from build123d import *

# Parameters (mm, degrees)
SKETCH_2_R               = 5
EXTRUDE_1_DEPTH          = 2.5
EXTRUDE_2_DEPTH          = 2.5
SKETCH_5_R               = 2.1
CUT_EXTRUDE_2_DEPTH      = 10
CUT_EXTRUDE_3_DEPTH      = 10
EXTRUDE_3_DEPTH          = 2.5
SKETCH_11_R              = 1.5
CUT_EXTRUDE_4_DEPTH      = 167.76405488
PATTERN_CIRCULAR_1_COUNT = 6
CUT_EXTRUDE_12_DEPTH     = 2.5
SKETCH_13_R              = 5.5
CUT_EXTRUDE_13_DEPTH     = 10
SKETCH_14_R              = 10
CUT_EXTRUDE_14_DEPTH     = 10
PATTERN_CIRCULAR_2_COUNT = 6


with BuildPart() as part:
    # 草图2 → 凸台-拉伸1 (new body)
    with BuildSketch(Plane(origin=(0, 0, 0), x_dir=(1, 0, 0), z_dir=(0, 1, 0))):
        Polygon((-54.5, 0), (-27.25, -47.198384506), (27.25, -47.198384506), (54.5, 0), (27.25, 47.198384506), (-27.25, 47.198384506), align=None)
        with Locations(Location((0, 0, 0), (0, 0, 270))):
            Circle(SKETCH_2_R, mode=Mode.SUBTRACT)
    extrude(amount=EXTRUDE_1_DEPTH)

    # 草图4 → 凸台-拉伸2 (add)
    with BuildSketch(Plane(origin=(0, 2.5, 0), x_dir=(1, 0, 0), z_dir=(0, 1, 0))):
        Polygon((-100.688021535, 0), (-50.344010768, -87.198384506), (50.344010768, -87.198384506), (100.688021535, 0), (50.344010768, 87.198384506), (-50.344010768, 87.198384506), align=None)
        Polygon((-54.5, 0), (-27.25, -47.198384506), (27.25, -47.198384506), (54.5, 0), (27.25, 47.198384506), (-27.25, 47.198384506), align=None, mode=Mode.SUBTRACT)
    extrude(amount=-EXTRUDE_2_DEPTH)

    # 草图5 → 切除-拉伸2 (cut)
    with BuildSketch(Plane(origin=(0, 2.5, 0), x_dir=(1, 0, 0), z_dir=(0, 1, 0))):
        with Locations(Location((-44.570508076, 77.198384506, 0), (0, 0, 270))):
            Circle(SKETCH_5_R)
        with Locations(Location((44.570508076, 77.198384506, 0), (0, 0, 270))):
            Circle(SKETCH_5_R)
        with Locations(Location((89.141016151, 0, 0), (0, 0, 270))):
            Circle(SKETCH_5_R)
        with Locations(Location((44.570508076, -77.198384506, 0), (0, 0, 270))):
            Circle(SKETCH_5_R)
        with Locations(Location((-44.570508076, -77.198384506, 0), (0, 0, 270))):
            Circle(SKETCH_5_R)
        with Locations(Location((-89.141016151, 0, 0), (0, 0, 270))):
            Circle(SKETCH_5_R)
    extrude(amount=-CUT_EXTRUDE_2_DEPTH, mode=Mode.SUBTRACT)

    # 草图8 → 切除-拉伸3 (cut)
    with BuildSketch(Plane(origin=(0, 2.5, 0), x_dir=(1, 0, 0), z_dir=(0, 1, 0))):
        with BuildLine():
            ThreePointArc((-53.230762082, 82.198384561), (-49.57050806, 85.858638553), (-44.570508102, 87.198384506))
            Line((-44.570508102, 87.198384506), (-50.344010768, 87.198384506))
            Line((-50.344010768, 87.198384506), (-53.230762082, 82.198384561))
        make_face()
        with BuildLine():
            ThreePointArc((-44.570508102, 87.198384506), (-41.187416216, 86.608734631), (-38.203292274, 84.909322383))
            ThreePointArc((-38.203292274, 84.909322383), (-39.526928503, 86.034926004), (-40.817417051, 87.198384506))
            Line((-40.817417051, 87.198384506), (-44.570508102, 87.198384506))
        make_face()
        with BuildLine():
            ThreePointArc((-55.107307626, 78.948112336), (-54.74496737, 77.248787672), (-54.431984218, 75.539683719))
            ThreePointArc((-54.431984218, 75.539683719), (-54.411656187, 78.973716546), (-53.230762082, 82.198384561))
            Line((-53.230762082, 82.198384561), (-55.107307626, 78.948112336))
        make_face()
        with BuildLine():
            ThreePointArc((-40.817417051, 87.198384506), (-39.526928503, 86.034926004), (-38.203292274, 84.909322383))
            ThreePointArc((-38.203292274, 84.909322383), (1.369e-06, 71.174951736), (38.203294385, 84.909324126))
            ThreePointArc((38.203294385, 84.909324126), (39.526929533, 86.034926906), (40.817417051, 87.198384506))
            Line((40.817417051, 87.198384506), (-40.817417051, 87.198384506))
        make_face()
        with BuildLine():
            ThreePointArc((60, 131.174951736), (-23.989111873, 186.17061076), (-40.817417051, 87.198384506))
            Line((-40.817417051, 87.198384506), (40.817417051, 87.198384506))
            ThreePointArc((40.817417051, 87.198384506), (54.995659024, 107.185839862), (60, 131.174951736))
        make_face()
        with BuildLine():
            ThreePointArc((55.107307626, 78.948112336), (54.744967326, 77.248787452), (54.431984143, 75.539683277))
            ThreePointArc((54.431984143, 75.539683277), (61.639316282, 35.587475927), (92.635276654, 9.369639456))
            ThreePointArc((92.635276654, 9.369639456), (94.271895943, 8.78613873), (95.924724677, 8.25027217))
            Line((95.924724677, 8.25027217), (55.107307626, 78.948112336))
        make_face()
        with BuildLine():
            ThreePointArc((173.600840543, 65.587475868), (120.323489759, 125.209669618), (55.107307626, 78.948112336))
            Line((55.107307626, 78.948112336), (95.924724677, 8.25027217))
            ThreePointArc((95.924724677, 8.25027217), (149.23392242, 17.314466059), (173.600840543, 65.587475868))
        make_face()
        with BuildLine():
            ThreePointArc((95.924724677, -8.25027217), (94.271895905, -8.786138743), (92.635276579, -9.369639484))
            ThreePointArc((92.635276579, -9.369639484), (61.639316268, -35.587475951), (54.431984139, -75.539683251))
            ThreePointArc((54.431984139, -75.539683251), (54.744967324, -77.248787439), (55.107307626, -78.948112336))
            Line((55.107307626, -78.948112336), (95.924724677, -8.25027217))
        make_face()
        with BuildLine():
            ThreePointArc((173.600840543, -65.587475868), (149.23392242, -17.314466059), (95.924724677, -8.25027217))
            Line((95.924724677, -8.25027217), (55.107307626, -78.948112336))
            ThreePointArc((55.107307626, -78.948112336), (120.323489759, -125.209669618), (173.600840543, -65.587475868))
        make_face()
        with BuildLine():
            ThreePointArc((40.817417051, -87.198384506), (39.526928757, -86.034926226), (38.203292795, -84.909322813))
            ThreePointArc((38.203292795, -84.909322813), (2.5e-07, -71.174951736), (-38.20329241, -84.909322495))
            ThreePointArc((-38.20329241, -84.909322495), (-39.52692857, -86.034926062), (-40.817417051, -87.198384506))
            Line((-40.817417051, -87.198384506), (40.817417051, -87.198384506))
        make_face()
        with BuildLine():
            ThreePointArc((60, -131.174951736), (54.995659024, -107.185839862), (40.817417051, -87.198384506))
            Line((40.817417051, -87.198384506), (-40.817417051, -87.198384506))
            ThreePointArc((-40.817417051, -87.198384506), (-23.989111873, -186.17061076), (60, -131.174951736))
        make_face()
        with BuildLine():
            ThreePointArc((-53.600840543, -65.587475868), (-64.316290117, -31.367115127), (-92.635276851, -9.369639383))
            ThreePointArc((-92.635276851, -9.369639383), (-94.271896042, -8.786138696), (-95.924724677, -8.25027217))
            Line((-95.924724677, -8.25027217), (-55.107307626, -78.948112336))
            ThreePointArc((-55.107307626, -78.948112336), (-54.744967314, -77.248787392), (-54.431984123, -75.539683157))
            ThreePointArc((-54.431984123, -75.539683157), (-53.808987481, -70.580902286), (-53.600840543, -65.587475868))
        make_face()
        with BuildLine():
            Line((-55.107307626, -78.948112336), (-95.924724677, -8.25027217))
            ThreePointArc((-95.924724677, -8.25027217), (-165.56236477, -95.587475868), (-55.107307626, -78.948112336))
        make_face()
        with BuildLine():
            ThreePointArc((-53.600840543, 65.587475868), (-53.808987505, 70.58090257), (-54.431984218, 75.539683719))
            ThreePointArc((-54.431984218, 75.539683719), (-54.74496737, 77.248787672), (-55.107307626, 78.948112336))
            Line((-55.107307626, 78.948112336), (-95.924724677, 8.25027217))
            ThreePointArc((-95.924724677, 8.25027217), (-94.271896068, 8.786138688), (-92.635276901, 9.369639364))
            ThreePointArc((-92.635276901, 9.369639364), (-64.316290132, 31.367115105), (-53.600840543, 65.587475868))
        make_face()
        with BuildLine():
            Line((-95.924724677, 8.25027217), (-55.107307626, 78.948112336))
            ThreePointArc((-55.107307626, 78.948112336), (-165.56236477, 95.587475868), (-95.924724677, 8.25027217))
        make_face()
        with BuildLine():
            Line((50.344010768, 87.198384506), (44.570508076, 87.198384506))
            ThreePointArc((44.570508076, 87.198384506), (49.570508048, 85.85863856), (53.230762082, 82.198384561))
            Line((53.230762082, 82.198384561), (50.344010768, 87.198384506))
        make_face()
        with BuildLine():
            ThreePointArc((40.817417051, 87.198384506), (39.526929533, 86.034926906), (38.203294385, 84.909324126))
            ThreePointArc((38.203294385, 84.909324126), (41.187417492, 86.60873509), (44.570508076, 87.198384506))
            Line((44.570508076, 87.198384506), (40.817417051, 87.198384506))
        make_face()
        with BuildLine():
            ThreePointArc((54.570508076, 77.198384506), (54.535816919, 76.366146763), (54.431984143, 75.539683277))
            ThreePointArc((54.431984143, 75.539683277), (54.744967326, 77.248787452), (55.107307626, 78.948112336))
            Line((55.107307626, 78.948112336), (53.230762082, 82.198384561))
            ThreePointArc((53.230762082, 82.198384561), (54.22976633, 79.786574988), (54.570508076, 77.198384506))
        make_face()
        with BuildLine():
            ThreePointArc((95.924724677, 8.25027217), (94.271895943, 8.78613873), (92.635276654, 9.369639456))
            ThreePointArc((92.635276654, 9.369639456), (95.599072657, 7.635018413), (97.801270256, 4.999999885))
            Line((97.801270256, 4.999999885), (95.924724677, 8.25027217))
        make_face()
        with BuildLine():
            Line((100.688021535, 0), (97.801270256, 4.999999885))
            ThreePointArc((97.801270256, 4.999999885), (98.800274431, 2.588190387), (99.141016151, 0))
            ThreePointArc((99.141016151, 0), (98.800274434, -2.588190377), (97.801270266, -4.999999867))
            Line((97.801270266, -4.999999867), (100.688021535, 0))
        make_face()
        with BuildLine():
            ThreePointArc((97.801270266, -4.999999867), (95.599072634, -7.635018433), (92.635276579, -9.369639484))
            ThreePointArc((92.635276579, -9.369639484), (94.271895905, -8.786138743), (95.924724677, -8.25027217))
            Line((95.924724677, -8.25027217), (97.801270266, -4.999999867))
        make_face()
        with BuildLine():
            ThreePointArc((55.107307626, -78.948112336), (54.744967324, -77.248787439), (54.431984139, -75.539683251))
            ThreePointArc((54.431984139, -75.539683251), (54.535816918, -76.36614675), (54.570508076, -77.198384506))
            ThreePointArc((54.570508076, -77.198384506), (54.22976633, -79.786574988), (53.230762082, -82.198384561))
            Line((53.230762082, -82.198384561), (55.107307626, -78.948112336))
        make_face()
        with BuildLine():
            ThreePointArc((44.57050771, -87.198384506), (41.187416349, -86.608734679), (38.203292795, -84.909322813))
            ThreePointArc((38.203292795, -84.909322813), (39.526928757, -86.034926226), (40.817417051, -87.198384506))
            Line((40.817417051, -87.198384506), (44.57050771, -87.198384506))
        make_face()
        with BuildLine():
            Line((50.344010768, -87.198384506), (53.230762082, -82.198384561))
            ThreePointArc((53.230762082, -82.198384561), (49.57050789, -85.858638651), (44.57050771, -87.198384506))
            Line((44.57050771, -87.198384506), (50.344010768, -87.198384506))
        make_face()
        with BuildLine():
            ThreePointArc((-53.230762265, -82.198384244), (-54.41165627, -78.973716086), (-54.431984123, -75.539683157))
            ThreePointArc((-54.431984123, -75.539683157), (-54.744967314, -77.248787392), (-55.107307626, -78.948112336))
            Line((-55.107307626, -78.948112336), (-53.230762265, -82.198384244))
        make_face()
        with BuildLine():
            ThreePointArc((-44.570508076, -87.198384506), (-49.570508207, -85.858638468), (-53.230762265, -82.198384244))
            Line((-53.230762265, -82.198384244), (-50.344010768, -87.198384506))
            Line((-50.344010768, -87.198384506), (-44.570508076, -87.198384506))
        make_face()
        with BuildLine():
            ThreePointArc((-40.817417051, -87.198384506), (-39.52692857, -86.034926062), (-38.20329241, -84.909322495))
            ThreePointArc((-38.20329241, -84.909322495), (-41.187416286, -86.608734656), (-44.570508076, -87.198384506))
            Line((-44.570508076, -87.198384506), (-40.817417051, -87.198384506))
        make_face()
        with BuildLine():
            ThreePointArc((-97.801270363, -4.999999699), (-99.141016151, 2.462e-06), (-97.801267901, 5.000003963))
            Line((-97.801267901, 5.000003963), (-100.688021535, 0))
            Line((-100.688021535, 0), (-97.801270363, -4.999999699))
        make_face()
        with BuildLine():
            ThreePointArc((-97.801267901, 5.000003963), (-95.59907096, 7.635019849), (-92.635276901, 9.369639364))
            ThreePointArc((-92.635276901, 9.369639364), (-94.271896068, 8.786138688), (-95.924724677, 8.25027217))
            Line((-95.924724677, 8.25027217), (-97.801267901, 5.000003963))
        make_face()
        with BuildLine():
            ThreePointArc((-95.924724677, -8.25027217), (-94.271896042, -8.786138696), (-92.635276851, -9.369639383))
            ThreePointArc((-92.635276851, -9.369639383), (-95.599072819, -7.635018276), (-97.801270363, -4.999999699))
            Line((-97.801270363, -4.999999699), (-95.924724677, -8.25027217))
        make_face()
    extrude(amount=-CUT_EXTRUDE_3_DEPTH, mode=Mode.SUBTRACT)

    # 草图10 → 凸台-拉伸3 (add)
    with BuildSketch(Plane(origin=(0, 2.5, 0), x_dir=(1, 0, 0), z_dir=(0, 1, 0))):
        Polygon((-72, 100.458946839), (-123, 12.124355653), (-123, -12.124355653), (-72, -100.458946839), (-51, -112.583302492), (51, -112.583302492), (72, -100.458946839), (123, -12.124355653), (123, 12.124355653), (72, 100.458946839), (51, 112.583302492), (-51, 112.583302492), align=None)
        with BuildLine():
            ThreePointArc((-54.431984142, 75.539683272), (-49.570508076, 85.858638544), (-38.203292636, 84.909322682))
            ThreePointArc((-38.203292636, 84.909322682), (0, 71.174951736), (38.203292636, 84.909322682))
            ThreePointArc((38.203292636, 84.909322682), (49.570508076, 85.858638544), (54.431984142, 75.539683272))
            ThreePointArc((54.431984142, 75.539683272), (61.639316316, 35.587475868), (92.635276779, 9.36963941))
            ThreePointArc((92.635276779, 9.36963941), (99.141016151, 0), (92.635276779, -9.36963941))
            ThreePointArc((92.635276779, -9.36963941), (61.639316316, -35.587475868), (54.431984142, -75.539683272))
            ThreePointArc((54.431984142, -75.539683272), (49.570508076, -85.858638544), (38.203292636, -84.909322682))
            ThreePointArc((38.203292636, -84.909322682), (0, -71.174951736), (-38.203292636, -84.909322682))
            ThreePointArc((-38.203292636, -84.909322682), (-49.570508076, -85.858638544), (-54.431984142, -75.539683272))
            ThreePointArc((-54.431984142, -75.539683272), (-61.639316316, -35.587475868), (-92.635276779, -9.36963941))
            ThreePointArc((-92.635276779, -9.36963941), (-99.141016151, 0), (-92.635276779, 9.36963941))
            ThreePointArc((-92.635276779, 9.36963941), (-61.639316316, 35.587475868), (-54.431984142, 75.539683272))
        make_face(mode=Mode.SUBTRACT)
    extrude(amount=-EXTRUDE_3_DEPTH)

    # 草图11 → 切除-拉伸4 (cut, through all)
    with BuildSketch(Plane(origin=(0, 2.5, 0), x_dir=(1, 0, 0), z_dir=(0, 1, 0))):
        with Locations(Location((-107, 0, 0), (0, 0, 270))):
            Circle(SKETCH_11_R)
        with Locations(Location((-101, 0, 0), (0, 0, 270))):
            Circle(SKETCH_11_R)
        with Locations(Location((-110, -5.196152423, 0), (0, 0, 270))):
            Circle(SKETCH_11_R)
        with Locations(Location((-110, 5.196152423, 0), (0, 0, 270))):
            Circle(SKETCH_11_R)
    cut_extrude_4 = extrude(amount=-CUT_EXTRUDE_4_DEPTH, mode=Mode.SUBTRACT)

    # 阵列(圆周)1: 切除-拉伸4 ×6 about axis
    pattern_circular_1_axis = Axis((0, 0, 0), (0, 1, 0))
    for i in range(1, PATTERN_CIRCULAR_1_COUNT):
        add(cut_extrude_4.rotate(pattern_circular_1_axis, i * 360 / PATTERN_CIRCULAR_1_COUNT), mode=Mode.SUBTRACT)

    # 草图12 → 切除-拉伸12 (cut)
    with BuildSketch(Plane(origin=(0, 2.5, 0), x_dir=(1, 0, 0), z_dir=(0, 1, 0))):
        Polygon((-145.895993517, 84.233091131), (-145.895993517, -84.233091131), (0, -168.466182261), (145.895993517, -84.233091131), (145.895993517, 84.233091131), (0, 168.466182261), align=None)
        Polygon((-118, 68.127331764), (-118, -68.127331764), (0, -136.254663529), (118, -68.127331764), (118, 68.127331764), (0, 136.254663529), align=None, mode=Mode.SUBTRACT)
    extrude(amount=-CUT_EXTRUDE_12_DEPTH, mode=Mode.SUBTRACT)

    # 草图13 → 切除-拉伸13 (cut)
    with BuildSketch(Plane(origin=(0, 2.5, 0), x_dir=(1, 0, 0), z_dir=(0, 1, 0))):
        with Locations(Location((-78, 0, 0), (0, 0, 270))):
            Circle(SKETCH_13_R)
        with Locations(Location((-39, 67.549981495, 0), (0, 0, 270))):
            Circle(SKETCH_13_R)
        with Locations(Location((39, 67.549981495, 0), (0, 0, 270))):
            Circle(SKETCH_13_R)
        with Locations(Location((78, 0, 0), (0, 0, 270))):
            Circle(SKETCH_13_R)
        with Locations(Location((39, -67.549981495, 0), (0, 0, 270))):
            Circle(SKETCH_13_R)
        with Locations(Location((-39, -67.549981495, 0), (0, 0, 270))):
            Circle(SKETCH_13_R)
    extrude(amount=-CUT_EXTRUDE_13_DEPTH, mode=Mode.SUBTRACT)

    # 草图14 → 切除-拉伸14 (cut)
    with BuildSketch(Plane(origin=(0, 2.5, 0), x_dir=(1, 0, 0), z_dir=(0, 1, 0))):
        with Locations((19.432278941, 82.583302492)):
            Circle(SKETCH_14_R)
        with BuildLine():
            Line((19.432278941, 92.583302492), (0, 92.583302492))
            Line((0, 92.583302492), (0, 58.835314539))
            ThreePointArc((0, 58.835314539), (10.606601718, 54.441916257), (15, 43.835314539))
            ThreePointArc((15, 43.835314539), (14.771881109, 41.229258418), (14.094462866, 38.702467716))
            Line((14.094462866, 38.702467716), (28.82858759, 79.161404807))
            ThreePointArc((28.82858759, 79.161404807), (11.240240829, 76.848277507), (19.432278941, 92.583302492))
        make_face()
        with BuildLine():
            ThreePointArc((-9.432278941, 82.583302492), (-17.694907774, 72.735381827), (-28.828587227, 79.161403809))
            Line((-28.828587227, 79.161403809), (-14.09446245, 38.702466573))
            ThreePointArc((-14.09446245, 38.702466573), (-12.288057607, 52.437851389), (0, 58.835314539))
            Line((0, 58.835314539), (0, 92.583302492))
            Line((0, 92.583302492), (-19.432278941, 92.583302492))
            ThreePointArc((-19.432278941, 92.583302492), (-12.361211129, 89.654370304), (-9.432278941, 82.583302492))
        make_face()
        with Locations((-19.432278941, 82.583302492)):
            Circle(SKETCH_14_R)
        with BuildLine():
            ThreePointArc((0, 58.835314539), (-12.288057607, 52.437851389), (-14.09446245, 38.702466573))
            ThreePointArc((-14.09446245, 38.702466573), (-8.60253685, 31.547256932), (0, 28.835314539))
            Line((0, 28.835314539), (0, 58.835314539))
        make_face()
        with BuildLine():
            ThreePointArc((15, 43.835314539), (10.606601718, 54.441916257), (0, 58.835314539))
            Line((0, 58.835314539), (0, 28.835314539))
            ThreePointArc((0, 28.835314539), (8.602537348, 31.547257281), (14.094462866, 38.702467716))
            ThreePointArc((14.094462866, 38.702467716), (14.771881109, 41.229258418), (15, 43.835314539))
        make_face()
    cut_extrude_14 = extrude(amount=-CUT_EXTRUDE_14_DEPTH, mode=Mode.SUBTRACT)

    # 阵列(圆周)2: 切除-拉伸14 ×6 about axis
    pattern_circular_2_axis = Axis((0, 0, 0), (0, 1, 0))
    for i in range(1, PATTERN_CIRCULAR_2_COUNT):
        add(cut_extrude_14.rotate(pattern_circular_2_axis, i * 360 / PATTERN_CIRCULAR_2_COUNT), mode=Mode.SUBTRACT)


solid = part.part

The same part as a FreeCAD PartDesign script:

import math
import FreeCAD as App
import Part
import Sketcher

V = App.Vector
Q = App.Units.Quantity


def add_polygon(sketch, points):
    """Adds a closed chain of lines whose ends are joined by coincident constraints."""
    first, n = sketch.GeometryCount, len(points)
    for a, b in zip(points, points[1:] + points[:1]):
        sketch.addGeometry(Part.LineSegment(App.Vector(*a, 0), App.Vector(*b, 0)), False)
    for i in range(n):
        sketch.addConstraint(Sketcher.Constraint("Coincident", first + i, 2, first + (i + 1) % n, 1))

doc = App.newDocument("Part")
body = doc.addObject("PartDesign::Body", "Body")

sketch1 = body.newObject("Sketcher::SketchObject", "Sketch")
sketch1.AttachmentSupport = (doc.getObject("XZ_Plane"), [""])
sketch1.MapMode = "FlatFace"
add_polygon(sketch1, [(-54.5, 0), (-27.25, 47.198385), (27.25, 47.198385), (54.5, 0), (27.25, -47.198385), (-27.25, -47.198385)])
sketch1.addGeometry(Part.Circle(V(0, 0, 0), V(0, 0, 1), 5), False)
sketch1.addConstraint([
    Sketcher.Constraint("Horizontal", 1),
    Sketcher.Constraint("Horizontal", 4),
    Sketcher.Constraint("Coincident", 6, 3, -1, 1),
    Sketcher.Constraint("Symmetric", 0, 2, 3, 2, -1, 1),
    Sketcher.Constraint("Symmetric", 2, 2, 5, 2, -1, 1),
    Sketcher.Constraint("PointOnObject", 2, 2, -1),
    Sketcher.Constraint("Parallel", 2, 5),
    Sketcher.Constraint("Vertical", 1, 2, 3, 2),
    Sketcher.Constraint("Diameter", 6, Q("10 mm")),
    Sketcher.Constraint("Angle", 0, Q("60 deg")),
    Sketcher.Constraint("DistanceX", 1, 1, 1, 2, Q("54.5 mm")),
    Sketcher.Constraint("Distance", 0, Q("54.5 mm")),
])
pad1 = body.newObject("PartDesign::Pad", "Pad")
pad1.Profile = sketch1
pad1.Length = 2.5
pad1.Reversed = True

sketch2 = body.newObject("Sketcher::SketchObject", "Sketch001")
sketch2.AttachmentSupport = (doc.getObject("XZ_Plane"), [""])
sketch2.MapMode = "FlatFace"
sketch2.AttachmentOffset = App.Placement(V(0, 0, -2.5), App.Rotation())
add_polygon(sketch2, [(-100.688022, 0), (-50.344011, 87.198385), (50.344011, 87.198385), (100.688022, 0), (50.344011, -87.198385), (-50.344011, -87.198385)])
add_polygon(sketch2, [(-27.25, 47.198385), (-54.5, 0), (-27.25, -47.198385), (27.25, -47.198385), (54.5, 0), (27.25, 47.198385)])
sketch2.addConstraint([
    Sketcher.Constraint("Horizontal", 1),
    Sketcher.Constraint("Horizontal", 4),
    Sketcher.Constraint("Horizontal", 8),
    Sketcher.Constraint("Horizontal", 11),
    Sketcher.Constraint("Symmetric", 0, 2, 3, 2, -1, 1),
    Sketcher.Constraint("Symmetric", 2, 2, 5, 2, -1, 1),
    Sketcher.Constraint("Symmetric", 6, 2, 9, 2, -1, 1),
    Sketcher.Constraint("Symmetric", 7, 2, 10, 2, -1, 1),
    Sketcher.Constraint("PointOnObject", 2, 2, -1),
    Sketcher.Constraint("PointOnObject", 6, 2, -1),
    Sketcher.Constraint("Parallel", 2, 5),
    Sketcher.Constraint("Parallel", 3, 6),
    Sketcher.Constraint("Parallel", 5, 7),
    Sketcher.Constraint("Parallel", 6, 9),
    Sketcher.Constraint("Vertical", 1, 2, 3, 2),
    Sketcher.Constraint("Angle", 0, Q("60 deg")),
    Sketcher.Constraint("DistanceX", 8, 1, 8, 2, Q("54.5 mm")),
    Sketcher.Constraint("DistanceY", 4, 2, 7, 2, Q("40 mm")),
    Sketcher.Constraint("Distance", 6, Q("54.5 mm")),
    Sketcher.Constraint("DistanceX", 1, 1, 1, 2, Q("100.688022 mm")),
])
pad2 = body.newObject("PartDesign::Pad", "Pad001")
pad2.Profile = sketch2
pad2.Length = 2.5

sketch3 = body.newObject("Sketcher::SketchObject", "Sketch002")
sketch3.AttachmentSupport = (doc.getObject("XZ_Plane"), [""])
sketch3.MapMode = "FlatFace"
sketch3.AttachmentOffset = App.Placement(V(0, 0, -2.5), App.Rotation())
sketch3.addGeometry([
    Part.Circle(V(-44.570508, -77.198385, 0), V(0, 0, 1), 2.1),
    Part.Circle(V(44.570508, -77.198385, 0), V(0, 0, 1), 2.1),
    Part.Circle(V(89.141016, 0, 0), V(0, 0, 1), 2.1),
    Part.Circle(V(44.570508, 77.198385, 0), V(0, 0, 1), 2.1),
    Part.Circle(V(-44.570508, 77.198385, 0), V(0, 0, 1), 2.1),
    Part.Circle(V(-89.141016, 0, 0), V(0, 0, 1), 2.1),
], False)
sketch3.addConstraint([
    Sketcher.Constraint("Equal", 0, 1),
    Sketcher.Constraint("Equal", 1, 2),
    Sketcher.Constraint("Equal", 2, 3),
    Sketcher.Constraint("Equal", 3, 4),
    Sketcher.Constraint("Equal", 4, 5),
    Sketcher.Constraint("Symmetric", 0, 3, 3, 3, -1, 1),
    Sketcher.Constraint("Symmetric", 1, 3, 4, 3, -1, 1),
    Sketcher.Constraint("Symmetric", 2, 3, 5, 3, -1, 1),
    Sketcher.Constraint("Symmetric", 0, 3, 1, 3, -2),
    Sketcher.Constraint("PointOnObject", 2, 3, -1),
    Sketcher.Constraint("Diameter", 0, Q("4.2 mm")),
    Sketcher.Constraint("DistanceX", 0, 3, -1, 1, Q("44.570508 mm")),
    Sketcher.Constraint("DistanceX", 1, 3, 2, 3, Q("44.570508 mm")),
    Sketcher.Constraint("DistanceY", 1, 3, 3, 3, Q("154.396769 mm")),
])
pocket1 = body.newObject("PartDesign::Pocket", "Pocket")
pocket1.Profile = sketch3
pocket1.Length = 10
pocket1.Reversed = True

sketch4 = body.newObject("Sketcher::SketchObject", "Sketch003")
sketch4.AttachmentSupport = (doc.getObject("XZ_Plane"), [""])
sketch4.MapMode = "FlatFace"
sketch4.AttachmentOffset = App.Placement(V(0, 0, -2.5), App.Rotation())
sketch4.addGeometry([
    Part.ArcOfCircle(Part.Circle(V(-44.570508, -77.198385, 0), V(0, 0, 1), 10), math.radians(-150), math.radians(-90)),
    Part.LineSegment(V(-44.570508, -87.198385, 0), V(-50.344011, -87.198385, 0)),
    Part.LineSegment(V(-50.344011, -87.198385, 0), V(-53.230762, -82.198385, 0)),
    Part.ArcOfCircle(Part.Circle(V(-44.570508, -77.198385, 0), V(0, 0, 1), 10), math.radians(-90), math.radians(-50.452212)),
    Part.ArcOfCircle(Part.Circle(V(0, -131.174952, 0), V(0, 0, 1), 60), math.radians(50.452212), math.radians(129.547785)),
    Part.ArcOfCircle(Part.Circle(V(44.570508, -77.198385, 0), V(0, 0, 1), 10), math.radians(-129.547772), math.radians(-90)),
    Part.LineSegment(V(44.570508, -87.198385, 0), V(40.817417, -87.198385, 0)),
    Part.ArcOfCircle(Part.Circle(V(0, -131.174952, 0), V(0, 0, 1), 60), math.radians(0), math.radians(47.133669)),
    Part.ArcOfCircle(Part.Circle(V(0, -131.174952, 0), V(0, 0, 1), 60), math.radians(132.866331), math.radians(360)),
    Part.LineSegment(V(-40.817417, -87.198385, 0), V(-44.570508, -87.198385, 0)),
    Part.ArcOfCircle(Part.Circle(V(-44.570508, -77.198385, 0), V(0, 0, 1), 10), math.radians(170.452217), math.radians(210)),
    Part.LineSegment(V(-53.230762, -82.198385, 0), V(-55.107308, -78.948112, 0)),
    Part.ArcOfCircle(Part.Circle(V(-113.600841, -65.587476, 0), V(0, 0, 1), 60), math.radians(72.866331), math.radians(347.133669)),
    Part.LineSegment(V(-95.924725, -8.250272, 0), V(-97.801268, -5.000004, 0)),
    Part.ArcOfCircle(Part.Circle(V(-89.141016, 0, 0), V(0, 0, 1), 10), math.radians(-149.999974), math.radians(-110.452215)),
    Part.ArcOfCircle(Part.Circle(V(-113.600841, -65.587476, 0), V(0, 0, 1), 60), math.radians(0), math.radians(69.547786)),
    Part.ArcOfCircle(Part.Circle(V(-113.600841, -65.587476, 0), V(0, 0, 1), 60), math.radians(-9.547786), math.radians(0)),
    Part.ArcOfCircle(Part.Circle(V(113.600841, -65.587476, 0), V(0, 0, 1), 60), math.radians(110.452215), math.radians(189.547785)),
    Part.ArcOfCircle(Part.Circle(V(89.141016, 0, 0), V(0, 0, 1), 10), math.radians(-69.547786), math.radians(-29.999999)),
    Part.LineSegment(V(97.80127, -5, 0), V(95.924725, -8.250272, 0)),
    Part.ArcOfCircle(Part.Circle(V(113.600841, -65.587476, 0), V(0, 0, 1), 60), math.radians(0), math.radians(107.133669)),
    Part.ArcOfCircle(Part.Circle(V(113.600841, -65.587476, 0), V(0, 0, 1), 60), math.radians(-167.133669), math.radians(0)),
    Part.LineSegment(V(55.107308, -78.948112, 0), V(53.230762, -82.198385, 0)),
    Part.ArcOfCircle(Part.Circle(V(44.570508, -77.198385, 0), V(0, 0, 1), 10), math.radians(-30), math.radians(0)),
    Part.ArcOfCircle(Part.Circle(V(44.570508, -77.198385, 0), V(0, 0, 1), 10), math.radians(0), math.radians(9.547785)),
    Part.ArcOfCircle(Part.Circle(V(113.600841, 65.587476, 0), V(0, 0, 1), 60), math.radians(170.452215), math.radians(249.547785)),
    Part.ArcOfCircle(Part.Circle(V(44.570508, 77.198385, 0), V(0, 0, 1), 10), math.radians(-9.547786), math.radians(0)),
    Part.ArcOfCircle(Part.Circle(V(44.570508, 77.198385, 0), V(0, 0, 1), 10), math.radians(0), math.radians(30)),
    Part.LineSegment(V(53.230762, 82.198385, 0), V(55.107308, 78.948112, 0)),
    Part.ArcOfCircle(Part.Circle(V(113.600841, 65.587476, 0), V(0, 0, 1), 60), math.radians(0), math.radians(167.133669)),
    Part.ArcOfCircle(Part.Circle(V(113.600841, 65.587476, 0), V(0, 0, 1), 60), math.radians(-107.133669), math.radians(0)),
    Part.LineSegment(V(95.924725, 8.250272, 0), V(97.80127, 5, 0)),
    Part.ArcOfCircle(Part.Circle(V(89.141016, 0, 0), V(0, 0, 1), 10), math.radians(29.999999), math.radians(69.547787)),
    Part.ArcOfCircle(Part.Circle(V(0, 131.174952, 0), V(0, 0, 1), 60), math.radians(-129.547785), math.radians(-50.452214)),
    Part.ArcOfCircle(Part.Circle(V(-44.570508, 77.198385, 0), V(0, 0, 1), 10), math.radians(50.452213), math.radians(90)),
    Part.LineSegment(V(-44.570508, 87.198385, 0), V(-40.817417, 87.198385, 0)),
    Part.ArcOfCircle(Part.Circle(V(0, 131.174952, 0), V(0, 0, 1), 60), math.radians(0), math.radians(227.133669)),
    Part.ArcOfCircle(Part.Circle(V(0, 131.174952, 0), V(0, 0, 1), 60), math.radians(-47.133669), math.radians(0)),
    Part.LineSegment(V(40.817417, 87.198385, 0), V(44.570508, 87.198385, 0)),
    Part.ArcOfCircle(Part.Circle(V(44.570508, 77.198385, 0), V(0, 0, 1), 10), math.radians(90.000002), math.radians(129.547784)),
    Part.ArcOfCircle(Part.Circle(V(-113.600841, 65.587476, 0), V(0, 0, 1), 60), math.radians(-69.547785), math.radians(0)),
    Part.ArcOfCircle(Part.Circle(V(-89.141016, 0, 0), V(0, 0, 1), 10), math.radians(110.452215), math.radians(150.000002)),
    Part.LineSegment(V(-97.80127, 5, 0), V(-95.924725, 8.250272, 0)),
    Part.ArcOfCircle(Part.Circle(V(-113.600841, 65.587476, 0), V(0, 0, 1), 60), math.radians(12.866331), math.radians(287.133669)),
    Part.LineSegment(V(-55.107308, 78.948112, 0), V(-53.230762, 82.198384, 0)),
    Part.ArcOfCircle(Part.Circle(V(-44.570508, 77.198385, 0), V(0, 0, 1), 10), math.radians(150.000002), math.radians(189.547786)),
    Part.ArcOfCircle(Part.Circle(V(-113.600841, 65.587476, 0), V(0, 0, 1), 60), math.radians(0), math.radians(9.547785)),
    Part.LineSegment(V(50.344011, -87.198385, 0), V(44.570508, -87.198385, 0)),
    Part.ArcOfCircle(Part.Circle(V(44.570508, -77.198385, 0), V(0, 0, 1), 10), math.radians(-90), math.radians(-30)),
    Part.LineSegment(V(53.230762, -82.198385, 0), V(50.344011, -87.198385, 0)),
    Part.LineSegment(V(100.688022, 0, 0), V(97.80127, -5, 0)),
    Part.ArcOfCircle(Part.Circle(V(89.141016, 0, 0), V(0, 0, 1), 10), math.radians(-29.999999), math.radians(0)),
    Part.ArcOfCircle(Part.Circle(V(89.141016, 0, 0), V(0, 0, 1), 10), math.radians(0), math.radians(29.999999)),
    Part.LineSegment(V(97.80127, 5, 0), V(100.688022, 0, 0)),
    Part.LineSegment(V(50.344011, 87.198385, 0), V(53.230762, 82.198385, 0)),
    Part.ArcOfCircle(Part.Circle(V(44.570508, 77.198385, 0), V(0, 0, 1), 10), math.radians(30), math.radians(90.000002)),
    Part.LineSegment(V(44.570508, 87.198385, 0), V(50.344011, 87.198385, 0)),
    Part.ArcOfCircle(Part.Circle(V(-44.570508, 77.198385, 0), V(0, 0, 1), 10), math.radians(90), math.radians(150.000002)),
    Part.LineSegment(V(-53.230762, 82.198384, 0), V(-50.344011, 87.198385, 0)),
    Part.LineSegment(V(-50.344011, 87.198385, 0), V(-44.570508, 87.198385, 0)),
    Part.ArcOfCircle(Part.Circle(V(-89.141016, 0, 0), V(0, 0, 1), 10), math.radians(150.000002), math.radians(210.000026)),
    Part.LineSegment(V(-97.801268, -5.000004, 0), V(-100.688022, 0, 0)),
    Part.LineSegment(V(-100.688022, 0, 0), V(-97.80127, 5, 0)),
], False)
sketch4.addConstraint([
    Sketcher.Constraint("Tangent", 0, 2, 1, 1),
    Sketcher.Constraint("Coincident", 1, 2, 2, 1),
    Sketcher.Constraint("Tangent", 2, 2, 0, 1),
    Sketcher.Constraint("Tangent", 3, 2, 4, 2),
    Sketcher.Constraint("Tangent", 4, 1, 5, 1),
    Sketcher.Constraint("Tangent", 5, 2, 6, 1),
    Sketcher.Constraint("Coincident", 6, 2, 7, 2),
    Sketcher.Constraint("Tangent", 7, 1, 8, 2),
    Sketcher.Constraint("Coincident", 8, 1, 9, 1),
    Sketcher.Constraint("Tangent", 9, 2, 3, 1),
    Sketcher.Constraint("Tangent", 10, 2, 11, 1),
    Sketcher.Constraint("Coincident", 11, 2, 12, 2),
    Sketcher.Constraint("Coincident", 12, 1, 13, 1),
    Sketcher.Constraint("Tangent", 13, 2, 14, 1),
    Sketcher.Constraint("Tangent", 14, 2, 15, 2),
    Sketcher.Constraint("Tangent", 15, 1, 16, 2),
    Sketcher.Constraint("Tangent", 16, 1, 10, 1),
    Sketcher.Constraint("Tangent", 17, 1, 18, 1),
    Sketcher.Constraint("Tangent", 18, 2, 19, 1),
    Sketcher.Constraint("Coincident", 19, 2, 20, 2),
    Sketcher.Constraint("Tangent", 20, 1, 21, 2),
    Sketcher.Constraint("Coincident", 21, 1, 22, 1),
    Sketcher.Constraint("Tangent", 22, 2, 23, 1),
    Sketcher.Constraint("Tangent", 23, 2, 24, 1),
    Sketcher.Constraint("Tangent", 24, 2, 17, 2),
    Sketcher.Constraint("Tangent", 25, 1, 26, 1),
    Sketcher.Constraint("Tangent", 26, 2, 27, 1),
    Sketcher.Constraint("Tangent", 27, 2, 28, 1),
    Sketcher.Constraint("Coincident", 28, 2, 29, 2),
    Sketcher.Constraint("Tangent", 29, 1, 30, 2),
    Sketcher.Constraint("Coincident", 30, 1, 31, 1),
    Sketcher.Constraint("Tangent", 31, 2, 32, 1),
    Sketcher.Constraint("Tangent", 32, 2, 25, 2),
    Sketcher.Constraint("Tangent", 33, 1, 34, 1),
    Sketcher.Constraint("Tangent", 34, 2, 35, 1),
    Sketcher.Constraint("Coincident", 35, 2, 36, 2),
    Sketcher.Constraint("Tangent", 36, 1, 37, 2),
    Sketcher.Constraint("Coincident", 37, 1, 38, 1),
    Sketcher.Constraint("Tangent", 38, 2, 39, 1),
    Sketcher.Constraint("Tangent", 39, 2, 33, 2),
    Sketcher.Constraint("Tangent", 40, 1, 41, 1),
    Sketcher.Constraint("Tangent", 41, 2, 42, 1),
    Sketcher.Constraint("Coincident", 42, 2, 43, 2),
    Sketcher.Constraint("Coincident", 43, 1, 44, 1),
    Sketcher.Constraint("Tangent", 44, 2, 45, 1),
    Sketcher.Constraint("Tangent", 45, 2, 46, 2),
    Sketcher.Constraint("Tangent", 46, 1, 40, 2),
    Sketcher.Constraint("Tangent", 47, 2, 48, 1),
    Sketcher.Constraint("Tangent", 48, 2, 49, 1),
    Sketcher.Constraint("Coincident", 49, 2, 47, 1),
    Sketcher.Constraint("Tangent", 50, 2, 51, 1),
    Sketcher.Constraint("Tangent", 51, 2, 52, 1),
    Sketcher.Constraint("Tangent", 52, 2, 53, 1),
    Sketcher.Constraint("Coincident", 53, 2, 50, 1),
    Sketcher.Constraint("Tangent", 54, 2, 55, 1),
    Sketcher.Constraint("Tangent", 55, 2, 56, 1),
    Sketcher.Constraint("Coincident", 56, 2, 54, 1),
    Sketcher.Constraint("Tangent", 57, 2, 58, 1),
    Sketcher.Constraint("Coincident", 58, 2, 59, 1),
    Sketcher.Constraint("Tangent", 59, 2, 57, 1),
    Sketcher.Constraint("Tangent", 60, 2, 61, 1),
    Sketcher.Constraint("Coincident", 61, 2, 62, 1),
    Sketcher.Constraint("Tangent", 62, 2, 60, 1),
    Sketcher.Constraint("Horizontal", 1),
    Sketcher.Constraint("Horizontal", 6),
    Sketcher.Constraint("Horizontal", 9),
    Sketcher.Constraint("Horizontal", 35),
    Sketcher.Constraint("Horizontal", 38),
    Sketcher.Constraint("Horizontal", 47),
    Sketcher.Constraint("Horizontal", 56),
    Sketcher.Constraint("Horizontal", 59),
    Sketcher.Constraint("Coincident", 3, 3, 0, 3),
    Sketcher.Constraint("Coincident", 7, 3, 4, 3),
    Sketcher.Constraint("Coincident", 10, 3, 0, 3),
    Sketcher.Constraint("Coincident", 15, 3, 12, 3),
    Sketcher.Constraint("Coincident", 20, 3, 17, 3),
    Sketcher.Constraint("Coincident", 23, 3, 5, 3),
    Sketcher.Constraint("Coincident", 29, 3, 25, 3),
    Sketcher.Constraint("Coincident", 32, 3, 18, 3),
    Sketcher.Constraint("Coincident", 36, 3, 33, 3),
    Sketcher.Constraint("Coincident", 39, 3, 26, 3),
    Sketcher.Constraint("Coincident", 41, 3, 14, 3),
    Sketcher.Constraint("Coincident", 43, 3, 40, 3),
    Sketcher.Constraint("Coincident", 45, 3, 34, 3),
    Sketcher.Constraint("Coincident", 48, 3, 5, 3),
    Sketcher.Constraint("Coincident", 51, 3, 18, 3),
    Sketcher.Constraint("Coincident", 55, 3, 26, 3),
    Sketcher.Constraint("Coincident", 57, 3, 34, 3),
    Sketcher.Constraint("Coincident", 60, 3, 14, 3),
    Sketcher.Constraint("Coincident", 10, 2, 2, 2),
    Sketcher.Constraint("Coincident", 48, 2, 22, 2),
    Sketcher.Constraint("Coincident", 50, 2, 18, 2),
    Sketcher.Constraint("Coincident", 52, 2, 31, 2),
    Sketcher.Constraint("Coincident", 54, 2, 27, 2),
    Sketcher.Constraint("Coincident", 57, 2, 44, 2),
    Sketcher.Constraint("Coincident", 60, 2, 13, 2),
    Sketcher.Constraint("Coincident", 62, 2, 41, 2),
    Sketcher.Constraint("Equal", 0, 3),
    Sketcher.Constraint("Equal", 3, 5),
    Sketcher.Constraint("Equal", 4, 7),
    Sketcher.Constraint("Equal", 7, 8),
    Sketcher.Constraint("Equal", 8, 12),
    Sketcher.Constraint("Equal", 10, 14),
    Sketcher.Constraint("Equal", 12, 15),
    Sketcher.Constraint("Equal", 15, 16),
    Sketcher.Constraint("Equal", 16, 17),
    Sketcher.Constraint("Equal", 14, 18),
    Sketcher.Constraint("Equal", 17, 20),
    Sketcher.Constraint("Equal", 20, 21),
    Sketcher.Constraint("Equal", 18, 23),
    Sketcher.Constraint("Equal", 23, 24),
    Sketcher.Constraint("Equal", 21, 25),
    Sketcher.Constraint("Equal", 24, 26),
    Sketcher.Constraint("Equal", 26, 27),
    Sketcher.Constraint("Equal", 25, 29),
    Sketcher.Constraint("Equal", 29, 30),
    Sketcher.Constraint("Equal", 27, 32),
    Sketcher.Constraint("Equal", 30, 33),
    Sketcher.Constraint("Equal", 32, 34),
    Sketcher.Constraint("Equal", 33, 36),
    Sketcher.Constraint("Equal", 36, 37),
    Sketcher.Constraint("Equal", 34, 39),
    Sketcher.Constraint("Equal", 37, 40),
    Sketcher.Constraint("Equal", 40, 43),
    Sketcher.Constraint("Equal", 41, 45),
    Sketcher.Constraint("Equal", 43, 46),
    Sketcher.Constraint("Symmetric", 14, 3, 18, 3, -1, 1),
    Sketcher.Constraint("Symmetric", 0, 3, 26, 3, -1, 1),
    Sketcher.Constraint("Symmetric", 5, 3, 34, 3, -1, 1),
    Sketcher.Constraint("Symmetric", 53, 2, 61, 2, -1, 1),
    Sketcher.Constraint("Symmetric", 0, 3, 5, 3, -2),
    Sketcher.Constraint("Symmetric", 13, 2, 18, 2, -2),
    Sketcher.Constraint("PointOnObject", 51, 2, -1),
    Sketcher.Constraint("Parallel", 11, 13),
    Sketcher.Constraint("Parallel", 19, 22),
    Sketcher.Constraint("Parallel", 13, 28),
    Sketcher.Constraint("Parallel", 42, 44),
    Sketcher.Constraint("Horizontal", 8, 3, 7, 1),
    Sketcher.Constraint("Horizontal", 21, 3, 15, 1),
    Sketcher.Constraint("Horizontal", 15, 1, 20, 1),
    Sketcher.Constraint("Horizontal", 48, 3, 23, 2),
    Sketcher.Constraint("Horizontal", 57, 3, 26, 2),
    Sketcher.Constraint("Horizontal", 46, 3, 29, 1),
    Sketcher.Constraint("Horizontal", 37, 3, 36, 1),
    Sketcher.Constraint("Horizontal", 29, 1, 46, 1),
    Sketcher.Constraint("Equal", 11, 19),
    Sketcher.Constraint("Equal", 49, 50),
    Sketcher.Constraint("Radius", 0, Q("10 mm")),
    Sketcher.Constraint("Radius", 4, Q("60 mm")),
    Sketcher.Constraint("DistanceX", 6, 2, 6, 1, Q("3.753091 mm")),
    Sketcher.Constraint("Distance", 11, Q("3.753091 mm")),
])
pocket2 = body.newObject("PartDesign::Pocket", "Pocket001")
pocket2.Profile = sketch4
pocket2.Length = 10
pocket2.Reversed = True

sketch5 = body.newObject("Sketcher::SketchObject", "Sketch004")
sketch5.AttachmentSupport = (doc.getObject("XZ_Plane"), [""])
sketch5.MapMode = "FlatFace"
sketch5.AttachmentOffset = App.Placement(V(0, 0, -2.5), App.Rotation())
add_polygon(sketch5, [(-72, -100.458947), (-123, -12.124356), (-123, 12.124356), (-72, 100.458947), (-51, 112.583302), (51, 112.583302), (72, 100.458947), (123, 12.124356), (123, -12.124356), (72, -100.458947), (51, -112.583302), (-51, -112.583302)])
sketch5.addGeometry(Part.ArcOfCircle(Part.Circle(V(-113.600841, -65.587476, 0), V(0, 0, 1), 60), math.radians(-9.547785), math.radians(69.547785)), False)
sketch5.addGeometry(Part.ArcOfCircle(Part.Circle(V(-44.570508, -77.198385, 0), V(0, 0, 1), 10), math.radians(170.452215), math.radians(309.547785)), False)
sketch5.addGeometry(Part.ArcOfCircle(Part.Circle(V(0, -131.174952, 0), V(0, 0, 1), 60), math.radians(50.452215), math.radians(129.547785)), False)
sketch5.addGeometry(Part.ArcOfCircle(Part.Circle(V(44.570508, -77.198385, 0), V(0, 0, 1), 10), math.radians(-129.547785), math.radians(9.547785)), False)
sketch5.addGeometry(Part.ArcOfCircle(Part.Circle(V(113.600841, -65.587476, 0), V(0, 0, 1), 60), math.radians(110.452215), math.radians(189.547785)), False)
sketch5.addGeometry(Part.ArcOfCircle(Part.Circle(V(89.141016, 0, 0), V(0, 0, 1), 10), math.radians(-69.547785), math.radians(69.547785)), False)
sketch5.addGeometry(Part.ArcOfCircle(Part.Circle(V(113.600841, 65.587476, 0), V(0, 0, 1), 60), math.radians(170.452215), math.radians(249.547785)), False)
sketch5.addGeometry(Part.ArcOfCircle(Part.Circle(V(44.570508, 77.198385, 0), V(0, 0, 1), 10), math.radians(-9.547785), math.radians(129.547785)), False)
sketch5.addGeometry(Part.ArcOfCircle(Part.Circle(V(0, 131.174952, 0), V(0, 0, 1), 60), math.radians(-129.547785), math.radians(-50.452215)), False)
sketch5.addGeometry(Part.ArcOfCircle(Part.Circle(V(-44.570508, 77.198385, 0), V(0, 0, 1), 10), math.radians(50.452215), math.radians(189.547785)), False)
sketch5.addGeometry(Part.ArcOfCircle(Part.Circle(V(-113.600841, 65.587476, 0), V(0, 0, 1), 60), math.radians(-69.547785), math.radians(9.547785)), False)
sketch5.addGeometry(Part.ArcOfCircle(Part.Circle(V(-89.141016, 0, 0), V(0, 0, 1), 10), math.radians(110.452215), math.radians(249.547785)), False)
sketch5.addConstraint([
    Sketcher.Constraint("Tangent", 12, 1, 13, 1),
    Sketcher.Constraint("Tangent", 13, 2, 14, 2),
    Sketcher.Constraint("Tangent", 14, 1, 15, 1),
    Sketcher.Constraint("Tangent", 15, 2, 16, 2),
    Sketcher.Constraint("Tangent", 16, 1, 17, 1),
    Sketcher.Constraint("Tangent", 17, 2, 18, 2),
    Sketcher.Constraint("Tangent", 18, 1, 19, 1),
    Sketcher.Constraint("Tangent", 19, 2, 20, 2),
    Sketcher.Constraint("Tangent", 20, 1, 21, 1),
    Sketcher.Constraint("Tangent", 21, 2, 22, 2),
    Sketcher.Constraint("Tangent", 22, 1, 23, 1),
    Sketcher.Constraint("Tangent", 23, 2, 12, 2),
    Sketcher.Constraint("Vertical", 1),
    Sketcher.Constraint("Horizontal", 4),
    Sketcher.Constraint("Vertical", 7),
    Sketcher.Constraint("Horizontal", 10),
    Sketcher.Constraint("Equal", 12, 14),
    Sketcher.Constraint("Equal", 13, 15),
    Sketcher.Constraint("Equal", 14, 16),
    Sketcher.Constraint("Equal", 15, 17),
    Sketcher.Constraint("Equal", 16, 18),
    Sketcher.Constraint("Equal", 17, 19),
    Sketcher.Constraint("Equal", 18, 20),
    Sketcher.Constraint("Equal", 19, 21),
    Sketcher.Constraint("Equal", 20, 22),
    Sketcher.Constraint("Equal", 21, 23),
    Sketcher.Constraint("Symmetric", 12, 3, 18, 3, -1, 1),
    Sketcher.Constraint("Symmetric", 14, 3, 20, 3, -1, 1),
    Sketcher.Constraint("Symmetric", 16, 3, 22, 3, -1, 1),
    Sketcher.Constraint("Symmetric", 0, 2, 6, 2, -1, 1),
    Sketcher.Constraint("Symmetric", 2, 2, 8, 2, -1, 1),
    Sketcher.Constraint("Symmetric", 3, 2, 9, 2, -1, 1),
    Sketcher.Constraint("Symmetric", 5, 2, 11, 2, -1, 1),
    Sketcher.Constraint("Symmetric", 13, 3, 15, 3, -2),
    Sketcher.Constraint("Symmetric", 2, 2, 5, 2, -2),
    Sketcher.Constraint("PointOnObject", 17, 3, -1),
    Sketcher.Constraint("Perpendicular", 0, 3),
    Sketcher.Constraint("Perpendicular", 2, 5),
    Sketcher.Constraint("Perpendicular", 5, 8),
    Sketcher.Constraint("Perpendicular", 8, 11),
    Sketcher.Constraint("Horizontal", 1, 2, 6, 2),
    Sketcher.Constraint("Radius", 12, Q("60 mm")),
    Sketcher.Constraint("Radius", 13, Q("10 mm")),
    Sketcher.Constraint("DistanceX", 4, 1, 4, 2, Q("102 mm")),
    Sketcher.Constraint("Angle", 0, Q("120 deg")),
    Sketcher.Constraint("Distance", 0, Q("102 mm")),
    Sketcher.Constraint("DistanceX", 0, 2, -1, 1, Q("123 mm")),
    Sketcher.Constraint("DistanceY", 1, 1, 1, 2, Q("24.248711 mm")),
    Sketcher.Constraint("DistanceY", 15, 3, 15, 2, Q("1.658701 mm")),
    Sketcher.Constraint("DistanceX", 12, 3, -1, 1, Q("113.600841 mm")),
    Sketcher.Constraint("DistanceY", 14, 3, -1, 1, Q("131.174952 mm")),
])
pad3 = body.newObject("PartDesign::Pad", "Pad002")
pad3.Profile = sketch5
pad3.Length = 2.5

sketch6 = body.newObject("Sketcher::SketchObject", "Sketch005")
sketch6.AttachmentSupport = (doc.getObject("XZ_Plane"), [""])
sketch6.MapMode = "FlatFace"
sketch6.AttachmentOffset = App.Placement(V(0, 0, -2.5), App.Rotation())
sketch6.addGeometry([
    Part.Circle(V(-107, 0, 0), V(0, 0, 1), 1.5),
    Part.Circle(V(-101, 0, 0), V(0, 0, 1), 1.5),
    Part.Circle(V(-110, 5.196152, 0), V(0, 0, 1), 1.5),
    Part.Circle(V(-110, -5.196152, 0), V(0, 0, 1), 1.5),
], False)
sketch6.addConstraint([
    Sketcher.Constraint("Equal", 0, 1),
    Sketcher.Constraint("Equal", 1, 2),
    Sketcher.Constraint("Equal", 2, 3),
    Sketcher.Constraint("Symmetric", 2, 3, 3, 3, -1),
    Sketcher.Constraint("PointOnObject", 0, 3, -1),
    Sketcher.Constraint("PointOnObject", 1, 3, -1),
    Sketcher.Constraint("Diameter", 0, Q("3 mm")),
    Sketcher.Constraint("DistanceX", 0, 3, -1, 1, Q("107 mm")),
    Sketcher.Constraint("DistanceX", 1, 3, -1, 1, Q("101 mm")),
    Sketcher.Constraint("DistanceX", 2, 3, -1, 1, Q("110 mm")),
    Sketcher.Constraint("DistanceY", -1, 1, 2, 3, Q("5.196152 mm")),
])
pocket3 = body.newObject("PartDesign::Pocket", "Pocket002")
pocket3.Profile = sketch6
pocket3.Type = "ThroughAll"
pocket3.Reversed = True
doc.recompute()

polarpattern = body.newObject("PartDesign::PolarPattern", "PolarPattern")
polarpattern.Originals = [pocket3]
polarpattern.Axis = (doc.getObject("Y_Axis"), [""])
polarpattern.Angle = 360
polarpattern.Occurrences = 6
body.Tip = polarpattern

sketch7 = body.newObject("Sketcher::SketchObject", "Sketch006")
sketch7.AttachmentSupport = (doc.getObject("XZ_Plane"), [""])
sketch7.MapMode = "FlatFace"
sketch7.AttachmentOffset = App.Placement(V(0, 0, -2.5), App.Rotation())
add_polygon(sketch7, [(-145.895994, -84.233091), (-145.895994, 84.233091), (0, 168.466182), (145.895994, 84.233091), (145.895994, -84.233091), (0, -168.466182)])
add_polygon(sketch7, [(-118, 68.127332), (-118, -68.127332), (0, -136.254664), (118, -68.127332), (118, 68.127332), (0, 136.254664)])
sketch7.addConstraint([
    Sketcher.Constraint("Vertical", 0),
    Sketcher.Constraint("Vertical", 3),
    Sketcher.Constraint("Vertical", 6),
    Sketcher.Constraint("Vertical", 9),
    Sketcher.Constraint("Symmetric", 0, 2, 3, 2, -1, 1),
    Sketcher.Constraint("Symmetric", 1, 2, 4, 2, -1, 1),
    Sketcher.Constraint("Symmetric", 6, 2, 9, 2, -1, 1),
    Sketcher.Constraint("Symmetric", 7, 2, 10, 2, -1, 1),
    Sketcher.Constraint("PointOnObject", 1, 2, -2),
    Sketcher.Constraint("PointOnObject", 7, 2, -2),
    Sketcher.Constraint("Parallel", 2, 5),
    Sketcher.Constraint("Parallel", 5, 7),
    Sketcher.Constraint("Parallel", 4, 8),
    Sketcher.Constraint("Parallel", 8, 11),
    Sketcher.Constraint("Horizontal", 0, 2, 2, 2),
    Sketcher.Constraint("Angle", 1, Q("30 deg")),
    Sketcher.Constraint("DistanceX", 6, 2, -1, 1, Q("118 mm")),
    Sketcher.Constraint("DistanceY", 0, 1, 0, 2, Q("168.466182 mm")),
    Sketcher.Constraint("DistanceY", 6, 2, 6, 1, Q("136.254664 mm")),
    Sketcher.Constraint("DistanceY", 0, 2, 1, 2, Q("84.233091 mm")),
])
pocket4 = body.newObject("PartDesign::Pocket", "Pocket003")
pocket4.Profile = sketch7
pocket4.Length = 2.5
pocket4.Reversed = True

sketch8 = body.newObject("Sketcher::SketchObject", "Sketch007")
sketch8.AttachmentSupport = (doc.getObject("XZ_Plane"), [""])
sketch8.MapMode = "FlatFace"
sketch8.AttachmentOffset = App.Placement(V(0, 0, -2.5), App.Rotation())
sketch8.addGeometry([
    Part.Circle(V(-78, 0, 0), V(0, 0, 1), 5.5),
    Part.Circle(V(-39, -67.549981, 0), V(0, 0, 1), 5.5),
    Part.Circle(V(39, -67.549981, 0), V(0, 0, 1), 5.5),
    Part.Circle(V(78, 0, 0), V(0, 0, 1), 5.5),
    Part.Circle(V(39, 67.549981, 0), V(0, 0, 1), 5.5),
    Part.Circle(V(-39, 67.549981, 0), V(0, 0, 1), 5.5),
], False)
sketch8.addConstraint([
    Sketcher.Constraint("Equal", 0, 1),
    Sketcher.Constraint("Equal", 1, 2),
    Sketcher.Constraint("Equal", 2, 3),
    Sketcher.Constraint("Equal", 3, 4),
    Sketcher.Constraint("Equal", 4, 5),
    Sketcher.Constraint("Symmetric", 0, 3, 3, 3, -1, 1),
    Sketcher.Constraint("Symmetric", 1, 3, 4, 3, -1, 1),
    Sketcher.Constraint("Symmetric", 2, 3, 5, 3, -1, 1),
    Sketcher.Constraint("Symmetric", 1, 3, 2, 3, -2),
    Sketcher.Constraint("PointOnObject", 0, 3, -1),
    Sketcher.Constraint("Diameter", 0, Q("11 mm")),
    Sketcher.Constraint("DistanceX", 0, 3, -1, 1, Q("78 mm")),
    Sketcher.Constraint("DistanceX", 1, 3, -1, 1, Q("39 mm")),
    Sketcher.Constraint("DistanceY", 1, 3, -1, 1, Q("67.549981 mm")),
])
pocket5 = body.newObject("PartDesign::Pocket", "Pocket004")
pocket5.Profile = sketch8
pocket5.Length = 10
pocket5.Reversed = True

sketch9 = body.newObject("Sketcher::SketchObject", "Sketch008")
sketch9.AttachmentSupport = (doc.getObject("XZ_Plane"), [""])
sketch9.MapMode = "FlatFace"
sketch9.AttachmentOffset = App.Placement(V(0, 0, -2.5), App.Rotation())
sketch9.addGeometry([
    Part.LineSegment(V(14.094463, -38.702468, 0), V(28.828588, -79.161405, 0)),
    Part.ArcOfCircle(Part.Circle(V(19.432279, -82.583302, 0), V(0, 0, 1), 10), math.radians(-90), math.radians(20.010343)),
    Part.LineSegment(V(19.432279, -92.583302, 0), V(-19.432279, -92.583302, 0)),
    Part.ArcOfCircle(Part.Circle(V(-19.432279, -82.583302, 0), V(0, 0, 1), 10), math.radians(159.989651), math.radians(270)),
    Part.LineSegment(V(-28.828587, -79.161404, 0), V(-14.094462, -38.702467, 0)),
    Part.ArcOfCircle(Part.Circle(V(0, -43.835315, 0), V(0, 0, 1), 15), math.radians(90), math.radians(159.989651)),
    Part.ArcOfCircle(Part.Circle(V(0, -43.835315, 0), V(0, 0, 1), 15), math.radians(20.010344), math.radians(90)),
], False)
sketch9.addConstraint([
    Sketcher.Constraint("Tangent", 0, 2, 1, 2),
    Sketcher.Constraint("Tangent", 1, 1, 2, 1),
    Sketcher.Constraint("Tangent", 2, 2, 3, 2),
    Sketcher.Constraint("Tangent", 3, 1, 4, 1),
    Sketcher.Constraint("Tangent", 4, 2, 5, 2),
    Sketcher.Constraint("Tangent", 5, 1, 6, 2),
    Sketcher.Constraint("Tangent", 6, 1, 0, 1),
    Sketcher.Constraint("Horizontal", 2),
    Sketcher.Constraint("Equal", 1, 3),
    Sketcher.Constraint("Equal", 5, 6),
    Sketcher.Constraint("Symmetric", 0, 2, 3, 1, -2),
    Sketcher.Constraint("PointOnObject", 5, 1, -2),
    Sketcher.Constraint("Radius", 1, Q("10 mm")),
    Sketcher.Constraint("Radius", 5, Q("15 mm")),
    Sketcher.Constraint("DistanceY", 3, 3, 3, 1, Q("3.421899 mm")),
    Sketcher.Constraint("DistanceX", 2, 2, 2, 1, Q("38.864558 mm")),
    Sketcher.Constraint("DistanceY", 1, 3, -1, 1, Q("82.583302 mm")),
])
pocket6 = body.newObject("PartDesign::Pocket", "Pocket005")
pocket6.Profile = sketch9
pocket6.Length = 10
pocket6.Reversed = True
doc.recompute()

polarpattern2 = body.newObject("PartDesign::PolarPattern", "PolarPattern001")
polarpattern2.Originals = [pocket6]
polarpattern2.Axis = (doc.getObject("Y_Axis"), [""])
polarpattern2.Angle = 360
polarpattern2.Occurrences = 6
body.Tip = polarpattern2

doc.recompute()
